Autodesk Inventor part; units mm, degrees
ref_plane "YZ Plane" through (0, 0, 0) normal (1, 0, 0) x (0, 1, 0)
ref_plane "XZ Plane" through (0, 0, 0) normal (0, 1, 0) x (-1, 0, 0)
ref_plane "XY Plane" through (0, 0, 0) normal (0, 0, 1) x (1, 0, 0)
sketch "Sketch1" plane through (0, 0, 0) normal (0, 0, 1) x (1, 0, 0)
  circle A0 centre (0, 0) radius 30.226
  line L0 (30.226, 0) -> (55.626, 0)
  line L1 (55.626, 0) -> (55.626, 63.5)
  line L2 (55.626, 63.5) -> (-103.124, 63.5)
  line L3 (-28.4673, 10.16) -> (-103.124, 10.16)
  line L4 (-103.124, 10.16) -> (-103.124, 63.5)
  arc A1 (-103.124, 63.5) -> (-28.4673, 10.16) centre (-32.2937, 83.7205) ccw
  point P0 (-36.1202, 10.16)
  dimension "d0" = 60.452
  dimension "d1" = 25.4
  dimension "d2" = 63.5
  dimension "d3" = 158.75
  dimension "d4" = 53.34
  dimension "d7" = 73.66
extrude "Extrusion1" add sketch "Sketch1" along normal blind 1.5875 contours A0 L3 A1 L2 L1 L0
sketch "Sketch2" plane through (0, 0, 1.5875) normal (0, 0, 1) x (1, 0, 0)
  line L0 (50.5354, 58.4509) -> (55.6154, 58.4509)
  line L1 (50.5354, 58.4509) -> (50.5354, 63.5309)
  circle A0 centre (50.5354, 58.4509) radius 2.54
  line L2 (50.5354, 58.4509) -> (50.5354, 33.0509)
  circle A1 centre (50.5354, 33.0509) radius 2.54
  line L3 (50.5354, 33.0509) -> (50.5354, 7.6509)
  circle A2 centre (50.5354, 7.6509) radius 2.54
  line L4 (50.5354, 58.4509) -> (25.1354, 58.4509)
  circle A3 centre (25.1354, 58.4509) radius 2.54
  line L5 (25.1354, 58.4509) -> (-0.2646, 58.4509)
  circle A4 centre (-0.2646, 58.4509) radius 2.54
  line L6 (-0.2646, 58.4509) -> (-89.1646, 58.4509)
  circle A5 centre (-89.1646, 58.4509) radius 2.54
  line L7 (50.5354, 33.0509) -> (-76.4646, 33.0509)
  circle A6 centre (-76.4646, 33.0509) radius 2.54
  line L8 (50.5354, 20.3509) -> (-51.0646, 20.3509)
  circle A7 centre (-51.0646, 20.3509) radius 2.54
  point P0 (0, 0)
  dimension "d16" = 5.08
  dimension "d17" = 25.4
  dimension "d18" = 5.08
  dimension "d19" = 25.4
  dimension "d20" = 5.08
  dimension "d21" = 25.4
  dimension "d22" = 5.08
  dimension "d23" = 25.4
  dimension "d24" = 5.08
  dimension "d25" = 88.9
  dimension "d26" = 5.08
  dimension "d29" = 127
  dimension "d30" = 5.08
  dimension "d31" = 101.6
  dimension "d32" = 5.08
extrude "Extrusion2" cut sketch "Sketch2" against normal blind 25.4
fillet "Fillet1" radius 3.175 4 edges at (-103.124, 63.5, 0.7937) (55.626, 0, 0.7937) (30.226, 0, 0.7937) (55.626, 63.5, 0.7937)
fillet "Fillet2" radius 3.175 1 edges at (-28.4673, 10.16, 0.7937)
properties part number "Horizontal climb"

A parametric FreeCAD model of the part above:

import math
import FreeCAD as App
import Part
import Sketcher
Q = App.Units.Quantity


def edges_at(feature, points):
    """Names of the edges that pass closest to the given points."""
    edges = feature.Shape.Edges
    near = lambda p: min(range(len(edges)), key=lambda i: edges[i].distToShape(Part.Vertex(*p))[0])
    return sorted({f"Edge{near(p) + 1}" for p in points})

doc = App.newDocument("Part")
body = doc.addObject("PartDesign::Body", "Body")

sketch1 = body.newObject("Sketcher::SketchObject", "Sketch")
sketch1.AttachmentSupport = (doc.getObject("XY_Plane"), [""])
sketch1.MapMode = "FlatFace"
sketch1.addGeometry([
    Part.ArcOfCircle(Part.Circle(App.Vector(0, 0, 0), App.Vector(0, 0, 1), 30.226), math.radians(0), math.radians(160.358481)),
    Part.LineSegment(App.Vector(30.226, 0, 0), App.Vector(55.626, 0, 0)),
    Part.LineSegment(App.Vector(55.626, 0, 0), App.Vector(55.626, 63.5, 0)),
    Part.LineSegment(App.Vector(55.626, 63.5, 0), App.Vector(-103.124, 63.5, 0)),
    Part.ArcOfCircle(Part.Circle(App.Vector(-32.2937, 83.7205, 0), App.Vector(0, 0, 1), 73.66003), math.radians(-164.067116), math.radians(-92.977915)),
    Part.LineSegment(App.Vector(-36.120411, 10.16, 0), App.Vector(-28.4673, 10.16, 0)),
], False)
sketch1.addConstraint([
    Sketcher.Constraint("Coincident", 0, 1, 1, 1),
    Sketcher.Constraint("Coincident", 1, 2, 2, 1),
    Sketcher.Constraint("Coincident", 2, 2, 3, 1),
    Sketcher.Constraint("Coincident", 3, 2, 4, 1),
    Sketcher.Constraint("Coincident", 4, 2, 5, 1),
    Sketcher.Constraint("Coincident", 5, 2, 0, 2),
    Sketcher.Constraint("Horizontal", 1),
    Sketcher.Constraint("Vertical", 2),
    Sketcher.Constraint("Horizontal", 3),
    Sketcher.Constraint("Horizontal", 5),
    Sketcher.Constraint("Coincident", 0, 3, -1, 1),
    Sketcher.Constraint("PointOnObject", 0, 1, -1),
    Sketcher.Constraint("Radius", 4, Q("2.9 in")),
    Sketcher.Constraint("DistanceX", 1, 1, 1, 2, Q("1 in")),
    Sketcher.Constraint("Radius", 0, Q("1.19 in")),
    Sketcher.Constraint("DistanceY", 2, 1, 2, 2, Q("2.5 in")),
    Sketcher.Constraint("DistanceX", 3, 2, 3, 1, Q("6.25 in")),
    Sketcher.Constraint("DistanceY", 4, 2, 3, 2, Q("2.1 in")),
    Sketcher.Constraint("DistanceX", 5, 1, 5, 2, Q("0.3013 in")),
])
pad1 = body.newObject("PartDesign::Pad", "Pad")
pad1.Profile = sketch1
pad1.Length = Q("0.0625 in")

sketch2 = body.newObject("Sketcher::SketchObject", "Sketch001")
sketch2.AttachmentSupport = (doc.getObject("XY_Plane"), [""])
sketch2.MapMode = "FlatFace"
sketch2.AttachmentOffset = App.Placement(App.Vector(0, 0, 0.0625 * 25.4), App.Rotation())
sketch2.addGeometry([
    Part.Circle(App.Vector(50.5354, 58.4509, 0), App.Vector(0, 0, 1), 2.54),
    Part.Circle(App.Vector(50.5354, 7.6509, 0), App.Vector(0, 0, 1), 2.54),
    Part.Circle(App.Vector(-51.0646, 20.3509, 0), App.Vector(0, 0, 1), 2.54),
    Part.Circle(App.Vector(-76.4646, 33.0509, 0), App.Vector(0, 0, 1), 2.54),
    Part.Circle(App.Vector(50.5354, 33.0509, 0), App.Vector(0, 0, 1), 2.54),
    Part.Circle(App.Vector(-89.1646, 58.4509, 0), App.Vector(0, 0, 1), 2.54),
    Part.Circle(App.Vector(-0.2646, 58.4509, 0), App.Vector(0, 0, 1), 2.54),
    Part.Circle(App.Vector(25.1354, 58.4509, 0), App.Vector(0, 0, 1), 2.54),
], False)
sketch2.addConstraint([
    Sketcher.Constraint("Equal", 0, 1),
    Sketcher.Constraint("Equal", 1, 2),
    Sketcher.Constraint("Equal", 2, 3),
    Sketcher.Constraint("Equal", 3, 4),
    Sketcher.Constraint("Equal", 4, 5),
    Sketcher.Constraint("Equal", 5, 6),
    Sketcher.Constraint("Equal", 6, 7),
    Sketcher.Constraint("Horizontal", 3, 3, 4, 3),
    Sketcher.Constraint("Horizontal", 0, 3, 5, 3),
    Sketcher.Constraint("Horizontal", 5, 3, 6, 3),
    Sketcher.Constraint("Horizontal", 6, 3, 7, 3),
    Sketcher.Constraint("Vertical", 0, 3, 1, 3),
    Sketcher.Constraint("Vertical", 1, 3, 4, 3),
    Sketcher.Constraint("Diameter", 0, Q("0.2 in")),
    Sketcher.Constraint("DistanceX", 2, 3, 1, 3, Q("4 in")),
    Sketcher.Constraint("DistanceX", 3, 3, 2, 3, Q("1 in")),
    Sketcher.Constraint("DistanceY", 3, 3, 0, 3, Q("1 in")),
    Sketcher.Constraint("DistanceY", 1, 3, 3, 3, Q("1 in")),
    Sketcher.Constraint("DistanceX", 7, 3, 0, 3, Q("1 in")),
    Sketcher.Constraint("DistanceX", 6, 3, 7, 3, Q("1 in")),
    Sketcher.Constraint("DistanceY", 1, 3, 2, 3, Q("0.5 in")),
    Sketcher.Constraint("DistanceX", 5, 3, 3, 3, Q("0.5 in")),
    Sketcher.Constraint("DistanceX", -1, 1, 0, 3, Q("50.5354 mm")),
    Sketcher.Constraint("DistanceY", -1, 1, 0, 3, Q("58.451 mm")),
])
pocket1 = body.newObject("PartDesign::Pocket", "Pocket")
pocket1.Profile = sketch2
pocket1.Length = Q("1 in")
doc.recompute()

fillet = body.newObject("PartDesign::Fillet", "Fillet")
fillet.Base = (pocket1, edges_at(pocket1, [
    (-103.124, 63.5, 0.794),
    (55.626, 0, 0.794),
    (30.226, 0, 0.794),
    (55.626, 63.5, 0.794),
]))
fillet.Radius = Q("0.125 in")
doc.recompute()

fillet2 = body.newObject("PartDesign::Fillet", "Fillet001")
fillet2.Base = (fillet, edges_at(fillet, [(-28.467, 10.16, 0.794)]))
fillet2.Radius = Q("0.125 in")

doc.recompute()
